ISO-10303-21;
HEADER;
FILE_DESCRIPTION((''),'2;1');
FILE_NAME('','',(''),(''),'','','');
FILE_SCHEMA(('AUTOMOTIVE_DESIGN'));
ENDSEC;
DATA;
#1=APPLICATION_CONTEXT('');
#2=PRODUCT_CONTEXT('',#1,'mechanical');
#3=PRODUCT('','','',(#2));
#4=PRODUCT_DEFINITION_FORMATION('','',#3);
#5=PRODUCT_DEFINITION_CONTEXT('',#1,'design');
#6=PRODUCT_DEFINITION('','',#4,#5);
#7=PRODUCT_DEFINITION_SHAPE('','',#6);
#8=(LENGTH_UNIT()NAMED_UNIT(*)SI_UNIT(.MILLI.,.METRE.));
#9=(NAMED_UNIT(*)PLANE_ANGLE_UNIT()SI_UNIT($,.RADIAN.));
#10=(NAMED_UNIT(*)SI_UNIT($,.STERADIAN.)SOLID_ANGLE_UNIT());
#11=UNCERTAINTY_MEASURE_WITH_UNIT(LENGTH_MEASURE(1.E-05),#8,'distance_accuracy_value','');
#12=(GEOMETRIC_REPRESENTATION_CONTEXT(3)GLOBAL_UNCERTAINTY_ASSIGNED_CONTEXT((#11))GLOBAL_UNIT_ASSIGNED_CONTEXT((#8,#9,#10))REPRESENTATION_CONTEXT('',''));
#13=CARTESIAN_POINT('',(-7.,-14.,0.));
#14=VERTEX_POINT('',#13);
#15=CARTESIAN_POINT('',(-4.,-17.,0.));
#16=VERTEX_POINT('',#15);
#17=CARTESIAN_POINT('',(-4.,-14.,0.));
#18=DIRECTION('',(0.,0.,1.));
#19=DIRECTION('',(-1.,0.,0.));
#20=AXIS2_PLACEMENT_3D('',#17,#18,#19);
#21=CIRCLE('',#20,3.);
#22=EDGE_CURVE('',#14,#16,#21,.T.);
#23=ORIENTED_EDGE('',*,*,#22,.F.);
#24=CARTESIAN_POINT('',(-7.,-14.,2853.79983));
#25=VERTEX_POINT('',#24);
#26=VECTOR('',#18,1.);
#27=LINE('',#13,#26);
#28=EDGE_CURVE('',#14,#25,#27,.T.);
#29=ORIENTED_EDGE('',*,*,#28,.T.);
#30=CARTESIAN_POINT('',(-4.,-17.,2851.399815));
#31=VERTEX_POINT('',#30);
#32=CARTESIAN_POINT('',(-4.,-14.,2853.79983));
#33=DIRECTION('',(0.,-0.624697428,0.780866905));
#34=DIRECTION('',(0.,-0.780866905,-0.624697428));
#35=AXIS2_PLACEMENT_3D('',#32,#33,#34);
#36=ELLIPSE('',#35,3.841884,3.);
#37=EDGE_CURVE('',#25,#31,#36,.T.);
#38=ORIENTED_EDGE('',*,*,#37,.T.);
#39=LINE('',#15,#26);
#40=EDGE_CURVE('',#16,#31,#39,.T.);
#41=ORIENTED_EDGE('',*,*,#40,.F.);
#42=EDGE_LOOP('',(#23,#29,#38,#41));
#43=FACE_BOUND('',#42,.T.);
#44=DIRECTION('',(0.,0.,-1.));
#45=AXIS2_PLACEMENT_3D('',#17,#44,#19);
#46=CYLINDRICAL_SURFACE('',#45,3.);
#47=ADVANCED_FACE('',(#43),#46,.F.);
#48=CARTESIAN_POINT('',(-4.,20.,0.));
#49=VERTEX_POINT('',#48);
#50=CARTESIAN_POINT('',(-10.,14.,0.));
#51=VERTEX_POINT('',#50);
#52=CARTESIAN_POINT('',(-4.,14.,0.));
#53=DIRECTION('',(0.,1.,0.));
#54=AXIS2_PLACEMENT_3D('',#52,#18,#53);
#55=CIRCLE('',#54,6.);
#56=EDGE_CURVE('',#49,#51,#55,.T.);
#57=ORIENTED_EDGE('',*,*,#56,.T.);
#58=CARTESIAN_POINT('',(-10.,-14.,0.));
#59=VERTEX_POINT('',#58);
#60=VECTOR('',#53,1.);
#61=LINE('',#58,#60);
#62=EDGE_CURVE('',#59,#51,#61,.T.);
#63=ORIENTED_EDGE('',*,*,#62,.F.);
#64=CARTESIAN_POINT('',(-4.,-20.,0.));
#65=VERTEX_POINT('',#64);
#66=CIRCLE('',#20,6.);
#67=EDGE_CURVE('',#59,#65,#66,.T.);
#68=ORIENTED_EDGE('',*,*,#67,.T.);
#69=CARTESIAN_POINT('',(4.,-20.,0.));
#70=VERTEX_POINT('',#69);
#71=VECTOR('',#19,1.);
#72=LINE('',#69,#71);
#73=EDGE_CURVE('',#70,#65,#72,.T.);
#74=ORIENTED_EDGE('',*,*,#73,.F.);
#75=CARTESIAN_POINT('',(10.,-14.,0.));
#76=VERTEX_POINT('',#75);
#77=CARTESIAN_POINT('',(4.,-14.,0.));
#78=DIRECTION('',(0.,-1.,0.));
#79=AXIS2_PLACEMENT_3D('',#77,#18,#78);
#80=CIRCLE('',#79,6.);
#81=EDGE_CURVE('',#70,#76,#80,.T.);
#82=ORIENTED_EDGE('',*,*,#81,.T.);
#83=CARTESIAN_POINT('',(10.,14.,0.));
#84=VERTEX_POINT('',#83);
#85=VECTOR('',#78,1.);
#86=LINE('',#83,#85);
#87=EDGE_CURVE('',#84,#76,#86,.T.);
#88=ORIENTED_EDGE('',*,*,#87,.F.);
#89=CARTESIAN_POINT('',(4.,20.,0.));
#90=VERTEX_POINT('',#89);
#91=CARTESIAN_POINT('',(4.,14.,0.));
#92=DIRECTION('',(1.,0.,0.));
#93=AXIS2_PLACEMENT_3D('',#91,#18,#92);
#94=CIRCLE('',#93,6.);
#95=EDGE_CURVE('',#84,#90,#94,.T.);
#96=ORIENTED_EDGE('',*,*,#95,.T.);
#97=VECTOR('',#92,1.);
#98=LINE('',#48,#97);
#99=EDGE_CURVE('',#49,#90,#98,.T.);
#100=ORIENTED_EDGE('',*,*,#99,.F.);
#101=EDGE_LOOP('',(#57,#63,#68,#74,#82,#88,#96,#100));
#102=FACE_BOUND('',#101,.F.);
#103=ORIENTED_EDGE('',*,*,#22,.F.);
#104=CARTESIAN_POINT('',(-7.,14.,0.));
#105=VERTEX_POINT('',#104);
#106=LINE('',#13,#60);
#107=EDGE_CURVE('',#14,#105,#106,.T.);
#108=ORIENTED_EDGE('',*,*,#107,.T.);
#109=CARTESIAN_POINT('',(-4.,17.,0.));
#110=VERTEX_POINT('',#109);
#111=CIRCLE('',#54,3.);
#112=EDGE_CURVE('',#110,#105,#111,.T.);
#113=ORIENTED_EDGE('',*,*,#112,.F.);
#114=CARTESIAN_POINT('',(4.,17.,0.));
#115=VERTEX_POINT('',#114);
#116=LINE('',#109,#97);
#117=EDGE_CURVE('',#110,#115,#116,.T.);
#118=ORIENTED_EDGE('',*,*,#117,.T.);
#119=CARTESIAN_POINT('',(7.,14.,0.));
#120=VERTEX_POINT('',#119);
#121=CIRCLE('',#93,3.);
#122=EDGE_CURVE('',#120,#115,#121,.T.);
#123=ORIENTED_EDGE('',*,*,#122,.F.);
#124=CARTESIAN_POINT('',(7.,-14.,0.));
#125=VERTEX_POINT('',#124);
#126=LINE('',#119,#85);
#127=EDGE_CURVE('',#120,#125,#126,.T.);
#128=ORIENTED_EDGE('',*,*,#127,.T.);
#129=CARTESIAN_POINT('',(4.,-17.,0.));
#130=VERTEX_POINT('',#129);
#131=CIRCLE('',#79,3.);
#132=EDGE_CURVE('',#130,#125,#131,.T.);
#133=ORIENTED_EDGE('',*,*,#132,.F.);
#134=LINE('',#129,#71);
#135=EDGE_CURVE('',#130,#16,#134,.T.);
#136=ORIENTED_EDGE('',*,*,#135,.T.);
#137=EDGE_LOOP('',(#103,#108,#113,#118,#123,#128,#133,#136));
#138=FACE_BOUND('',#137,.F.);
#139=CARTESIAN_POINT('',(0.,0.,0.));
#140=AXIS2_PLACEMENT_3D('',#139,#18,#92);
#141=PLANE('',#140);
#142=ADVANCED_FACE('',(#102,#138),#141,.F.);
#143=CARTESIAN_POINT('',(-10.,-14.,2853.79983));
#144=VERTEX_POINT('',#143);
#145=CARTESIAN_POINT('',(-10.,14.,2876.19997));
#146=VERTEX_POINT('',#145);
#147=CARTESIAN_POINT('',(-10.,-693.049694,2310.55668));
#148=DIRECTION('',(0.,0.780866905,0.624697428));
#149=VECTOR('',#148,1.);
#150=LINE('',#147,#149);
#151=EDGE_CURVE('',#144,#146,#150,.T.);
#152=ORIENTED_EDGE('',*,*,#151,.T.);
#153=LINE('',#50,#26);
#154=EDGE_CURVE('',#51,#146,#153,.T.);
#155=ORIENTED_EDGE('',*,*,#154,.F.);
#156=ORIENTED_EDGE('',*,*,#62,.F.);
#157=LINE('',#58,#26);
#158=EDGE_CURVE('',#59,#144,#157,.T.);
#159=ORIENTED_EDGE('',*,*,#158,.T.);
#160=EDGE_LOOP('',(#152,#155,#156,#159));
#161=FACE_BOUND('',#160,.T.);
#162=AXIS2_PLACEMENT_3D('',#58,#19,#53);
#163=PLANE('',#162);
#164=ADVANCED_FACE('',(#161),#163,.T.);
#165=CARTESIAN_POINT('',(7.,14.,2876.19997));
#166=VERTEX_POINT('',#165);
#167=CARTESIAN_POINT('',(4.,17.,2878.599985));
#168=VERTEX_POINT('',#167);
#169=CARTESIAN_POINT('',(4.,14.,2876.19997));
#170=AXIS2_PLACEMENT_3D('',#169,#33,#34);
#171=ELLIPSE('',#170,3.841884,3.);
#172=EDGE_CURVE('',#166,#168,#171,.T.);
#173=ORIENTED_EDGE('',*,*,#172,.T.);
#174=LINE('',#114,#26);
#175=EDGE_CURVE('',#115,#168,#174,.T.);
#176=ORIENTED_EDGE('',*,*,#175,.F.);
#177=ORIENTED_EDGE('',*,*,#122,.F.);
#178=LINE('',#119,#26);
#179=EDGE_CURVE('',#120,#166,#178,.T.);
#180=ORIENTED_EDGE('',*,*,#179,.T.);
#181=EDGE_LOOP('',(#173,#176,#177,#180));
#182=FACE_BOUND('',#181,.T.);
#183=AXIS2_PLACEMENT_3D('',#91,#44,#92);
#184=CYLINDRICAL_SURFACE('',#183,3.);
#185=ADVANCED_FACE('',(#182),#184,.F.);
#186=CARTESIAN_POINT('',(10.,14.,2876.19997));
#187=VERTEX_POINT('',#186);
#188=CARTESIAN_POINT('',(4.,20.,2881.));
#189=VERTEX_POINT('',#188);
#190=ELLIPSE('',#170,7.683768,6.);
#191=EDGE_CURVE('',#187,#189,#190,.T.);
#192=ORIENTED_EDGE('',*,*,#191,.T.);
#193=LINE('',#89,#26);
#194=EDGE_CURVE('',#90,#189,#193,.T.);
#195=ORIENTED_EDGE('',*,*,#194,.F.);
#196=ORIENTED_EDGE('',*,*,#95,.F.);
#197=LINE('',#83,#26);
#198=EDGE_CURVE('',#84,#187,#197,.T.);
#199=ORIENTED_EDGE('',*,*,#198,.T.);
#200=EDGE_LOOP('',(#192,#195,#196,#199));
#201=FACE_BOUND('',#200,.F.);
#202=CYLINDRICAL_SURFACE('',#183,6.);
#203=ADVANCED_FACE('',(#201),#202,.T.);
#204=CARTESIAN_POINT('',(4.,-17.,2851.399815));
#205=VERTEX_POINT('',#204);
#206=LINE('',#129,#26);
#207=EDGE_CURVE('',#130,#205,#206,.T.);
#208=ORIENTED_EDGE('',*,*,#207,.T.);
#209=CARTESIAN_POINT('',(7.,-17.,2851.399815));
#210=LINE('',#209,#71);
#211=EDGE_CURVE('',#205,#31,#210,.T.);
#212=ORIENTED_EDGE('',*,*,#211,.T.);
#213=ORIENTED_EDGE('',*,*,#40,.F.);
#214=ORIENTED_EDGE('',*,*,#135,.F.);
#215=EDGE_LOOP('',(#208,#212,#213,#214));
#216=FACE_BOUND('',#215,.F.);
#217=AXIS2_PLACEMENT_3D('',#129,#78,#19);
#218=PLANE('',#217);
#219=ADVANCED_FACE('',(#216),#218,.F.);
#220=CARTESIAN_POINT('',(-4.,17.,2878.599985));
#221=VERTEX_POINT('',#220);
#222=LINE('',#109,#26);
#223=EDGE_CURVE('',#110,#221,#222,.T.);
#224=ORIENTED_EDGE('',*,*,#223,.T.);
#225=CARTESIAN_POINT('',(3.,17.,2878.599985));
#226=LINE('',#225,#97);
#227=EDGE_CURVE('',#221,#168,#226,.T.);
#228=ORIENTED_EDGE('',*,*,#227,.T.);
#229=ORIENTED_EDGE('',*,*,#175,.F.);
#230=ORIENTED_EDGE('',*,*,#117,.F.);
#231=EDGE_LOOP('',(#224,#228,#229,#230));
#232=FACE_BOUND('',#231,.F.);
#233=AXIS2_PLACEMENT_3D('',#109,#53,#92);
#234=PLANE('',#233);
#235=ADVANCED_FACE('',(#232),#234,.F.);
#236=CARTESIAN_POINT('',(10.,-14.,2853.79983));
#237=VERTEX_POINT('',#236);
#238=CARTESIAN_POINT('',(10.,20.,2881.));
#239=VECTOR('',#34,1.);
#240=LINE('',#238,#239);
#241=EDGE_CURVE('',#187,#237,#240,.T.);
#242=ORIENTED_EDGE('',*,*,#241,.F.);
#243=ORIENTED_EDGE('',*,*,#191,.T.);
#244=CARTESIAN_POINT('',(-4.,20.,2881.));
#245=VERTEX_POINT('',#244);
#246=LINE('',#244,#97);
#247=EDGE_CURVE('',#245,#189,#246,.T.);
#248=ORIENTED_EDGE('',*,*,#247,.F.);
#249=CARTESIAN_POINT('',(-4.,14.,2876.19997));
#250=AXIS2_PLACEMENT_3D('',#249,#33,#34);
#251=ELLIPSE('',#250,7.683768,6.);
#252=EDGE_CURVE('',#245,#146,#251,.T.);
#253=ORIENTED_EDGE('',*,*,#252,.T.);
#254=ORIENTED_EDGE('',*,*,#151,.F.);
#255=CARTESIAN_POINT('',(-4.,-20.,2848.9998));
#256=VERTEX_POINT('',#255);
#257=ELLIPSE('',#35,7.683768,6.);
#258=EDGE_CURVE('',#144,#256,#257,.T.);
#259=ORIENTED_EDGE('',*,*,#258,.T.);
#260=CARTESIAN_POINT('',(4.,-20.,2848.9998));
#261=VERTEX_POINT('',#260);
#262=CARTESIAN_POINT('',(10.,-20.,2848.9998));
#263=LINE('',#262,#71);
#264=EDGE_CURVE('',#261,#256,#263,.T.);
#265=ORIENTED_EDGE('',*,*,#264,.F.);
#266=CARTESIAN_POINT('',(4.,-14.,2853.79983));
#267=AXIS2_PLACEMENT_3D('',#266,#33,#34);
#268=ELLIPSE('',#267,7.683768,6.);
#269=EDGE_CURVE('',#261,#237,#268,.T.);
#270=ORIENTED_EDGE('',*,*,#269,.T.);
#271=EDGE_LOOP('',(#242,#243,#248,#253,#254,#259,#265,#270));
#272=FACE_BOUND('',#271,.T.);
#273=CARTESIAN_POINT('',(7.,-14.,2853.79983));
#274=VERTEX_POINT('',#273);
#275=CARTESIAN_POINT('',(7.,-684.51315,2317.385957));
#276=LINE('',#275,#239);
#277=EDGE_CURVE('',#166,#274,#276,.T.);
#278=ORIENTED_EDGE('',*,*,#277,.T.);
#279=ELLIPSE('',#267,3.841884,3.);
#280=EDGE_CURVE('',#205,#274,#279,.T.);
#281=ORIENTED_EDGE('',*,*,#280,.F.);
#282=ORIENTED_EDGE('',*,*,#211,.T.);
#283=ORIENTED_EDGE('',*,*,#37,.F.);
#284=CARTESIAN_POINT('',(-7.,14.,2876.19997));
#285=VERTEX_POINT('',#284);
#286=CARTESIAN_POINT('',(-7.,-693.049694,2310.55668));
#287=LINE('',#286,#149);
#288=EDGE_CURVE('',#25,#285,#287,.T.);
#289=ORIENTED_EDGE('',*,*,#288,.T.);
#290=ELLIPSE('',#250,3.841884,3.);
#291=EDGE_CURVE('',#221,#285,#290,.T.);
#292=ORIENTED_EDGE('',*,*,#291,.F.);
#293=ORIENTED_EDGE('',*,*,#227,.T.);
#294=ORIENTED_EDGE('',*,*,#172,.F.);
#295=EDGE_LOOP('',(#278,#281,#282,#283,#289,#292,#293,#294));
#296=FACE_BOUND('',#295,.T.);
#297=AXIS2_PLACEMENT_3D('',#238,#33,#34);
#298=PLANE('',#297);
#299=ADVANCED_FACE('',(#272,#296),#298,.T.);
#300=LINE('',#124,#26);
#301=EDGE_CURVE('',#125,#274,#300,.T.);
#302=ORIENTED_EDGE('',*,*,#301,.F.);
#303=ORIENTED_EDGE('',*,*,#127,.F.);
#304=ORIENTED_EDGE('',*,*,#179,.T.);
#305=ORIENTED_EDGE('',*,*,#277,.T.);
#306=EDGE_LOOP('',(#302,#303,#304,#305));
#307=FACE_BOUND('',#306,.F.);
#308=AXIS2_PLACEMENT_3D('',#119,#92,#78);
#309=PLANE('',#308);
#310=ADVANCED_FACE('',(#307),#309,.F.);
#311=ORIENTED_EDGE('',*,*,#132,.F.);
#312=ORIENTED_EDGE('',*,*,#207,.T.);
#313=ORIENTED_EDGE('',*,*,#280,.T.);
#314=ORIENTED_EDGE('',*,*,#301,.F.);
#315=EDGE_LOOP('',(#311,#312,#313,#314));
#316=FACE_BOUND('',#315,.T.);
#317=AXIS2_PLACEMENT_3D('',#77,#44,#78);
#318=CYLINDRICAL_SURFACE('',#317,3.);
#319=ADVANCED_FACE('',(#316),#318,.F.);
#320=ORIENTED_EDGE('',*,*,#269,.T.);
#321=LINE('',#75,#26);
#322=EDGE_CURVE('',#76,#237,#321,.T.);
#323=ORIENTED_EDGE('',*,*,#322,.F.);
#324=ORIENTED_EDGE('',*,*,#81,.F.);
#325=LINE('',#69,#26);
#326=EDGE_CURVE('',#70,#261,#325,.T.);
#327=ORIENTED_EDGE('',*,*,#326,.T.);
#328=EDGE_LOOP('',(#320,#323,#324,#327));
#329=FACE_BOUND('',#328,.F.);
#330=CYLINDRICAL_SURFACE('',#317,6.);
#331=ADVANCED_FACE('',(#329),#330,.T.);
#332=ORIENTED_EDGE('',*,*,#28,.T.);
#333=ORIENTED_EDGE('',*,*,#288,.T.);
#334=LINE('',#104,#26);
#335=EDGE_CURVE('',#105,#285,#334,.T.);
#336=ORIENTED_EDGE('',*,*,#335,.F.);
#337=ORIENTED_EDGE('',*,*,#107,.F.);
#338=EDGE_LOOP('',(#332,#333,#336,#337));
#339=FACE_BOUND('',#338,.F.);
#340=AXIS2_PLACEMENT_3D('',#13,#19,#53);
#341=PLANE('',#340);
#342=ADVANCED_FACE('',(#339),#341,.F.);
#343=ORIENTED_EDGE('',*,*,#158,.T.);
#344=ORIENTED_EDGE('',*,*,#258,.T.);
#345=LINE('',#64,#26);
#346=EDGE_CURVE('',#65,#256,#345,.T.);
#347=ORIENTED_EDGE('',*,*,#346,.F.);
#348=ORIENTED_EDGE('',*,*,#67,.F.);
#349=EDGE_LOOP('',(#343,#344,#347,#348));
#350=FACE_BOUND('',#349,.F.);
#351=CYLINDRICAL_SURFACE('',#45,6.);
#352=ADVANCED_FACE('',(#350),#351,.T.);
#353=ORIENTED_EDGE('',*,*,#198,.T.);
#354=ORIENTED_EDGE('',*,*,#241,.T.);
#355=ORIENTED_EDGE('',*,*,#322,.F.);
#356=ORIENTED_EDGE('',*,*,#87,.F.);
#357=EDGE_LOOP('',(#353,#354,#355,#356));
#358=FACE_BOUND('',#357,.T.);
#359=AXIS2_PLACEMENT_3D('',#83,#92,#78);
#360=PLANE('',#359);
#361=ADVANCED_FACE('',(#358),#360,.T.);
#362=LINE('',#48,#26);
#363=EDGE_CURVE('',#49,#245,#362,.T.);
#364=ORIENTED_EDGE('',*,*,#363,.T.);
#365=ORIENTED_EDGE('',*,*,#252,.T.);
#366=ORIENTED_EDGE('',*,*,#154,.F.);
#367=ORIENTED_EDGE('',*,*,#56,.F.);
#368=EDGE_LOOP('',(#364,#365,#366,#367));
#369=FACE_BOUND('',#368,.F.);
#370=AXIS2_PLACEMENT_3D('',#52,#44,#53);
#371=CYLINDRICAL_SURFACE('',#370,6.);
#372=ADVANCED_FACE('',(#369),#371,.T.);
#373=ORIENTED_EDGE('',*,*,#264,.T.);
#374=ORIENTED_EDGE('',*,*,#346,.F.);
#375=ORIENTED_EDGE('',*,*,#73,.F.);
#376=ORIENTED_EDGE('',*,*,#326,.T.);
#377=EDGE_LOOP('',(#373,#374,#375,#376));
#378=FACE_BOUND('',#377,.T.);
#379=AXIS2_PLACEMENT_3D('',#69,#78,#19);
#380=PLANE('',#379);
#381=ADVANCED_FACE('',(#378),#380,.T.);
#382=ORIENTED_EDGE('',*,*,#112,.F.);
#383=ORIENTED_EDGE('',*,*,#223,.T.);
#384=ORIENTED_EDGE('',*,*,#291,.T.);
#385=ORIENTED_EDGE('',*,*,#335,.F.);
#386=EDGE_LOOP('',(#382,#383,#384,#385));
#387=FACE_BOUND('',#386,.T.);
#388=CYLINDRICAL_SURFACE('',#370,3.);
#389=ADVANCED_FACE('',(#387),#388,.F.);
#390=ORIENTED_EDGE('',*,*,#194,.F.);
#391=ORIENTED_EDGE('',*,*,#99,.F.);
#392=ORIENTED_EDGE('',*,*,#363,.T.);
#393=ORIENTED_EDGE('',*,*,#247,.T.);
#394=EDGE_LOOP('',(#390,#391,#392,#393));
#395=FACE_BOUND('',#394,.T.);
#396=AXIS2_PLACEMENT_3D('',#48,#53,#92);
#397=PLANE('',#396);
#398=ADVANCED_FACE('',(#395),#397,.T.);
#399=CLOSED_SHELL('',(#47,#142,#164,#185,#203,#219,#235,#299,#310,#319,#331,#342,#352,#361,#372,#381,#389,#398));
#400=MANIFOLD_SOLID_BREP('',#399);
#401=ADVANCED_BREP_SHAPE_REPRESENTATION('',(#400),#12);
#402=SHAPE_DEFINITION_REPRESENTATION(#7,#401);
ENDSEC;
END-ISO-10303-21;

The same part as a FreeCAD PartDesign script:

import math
import FreeCAD as App
import Part
import Sketcher
from FreeCAD import Vector
Q = App.Units.Quantity

doc = App.newDocument("Part")
body = doc.addObject("PartDesign::Body", "Body")

# Sketch on XY plane
sketch1 = doc.addObject("Sketcher::SketchObject", "Sketch")
body.addObject(sketch1)
sketch1.AttachmentSupport = (doc.XY_Plane, [""])
sketch1.MapMode = "FlatFace"
sketch1.addGeometry(Part.LineSegment(Vector(-10, 14, 0), Vector(-10, -14, 0)), False)
sketch1.addGeometry(Part.ArcOfCircle(Part.Circle(Vector(-4, -14, 0), Vector(0, 0, 1), 6), math.radians(180), math.radians(270)), False)
sketch1.addGeometry(Part.LineSegment(Vector(-4, -20, 0), Vector(4, -20, 0)), False)
sketch1.addGeometry(Part.ArcOfCircle(Part.Circle(Vector(4, -14, 0), Vector(0, 0, 1), 6), math.radians(-90), math.radians(0)), False)
sketch1.addGeometry(Part.LineSegment(Vector(10, -14, 0), Vector(10, 14, 0)), False)
sketch1.addGeometry(Part.ArcOfCircle(Part.Circle(Vector(4, 14, 0), Vector(0, 0, 1), 6), math.radians(0), math.radians(90)), False)
sketch1.addGeometry(Part.LineSegment(Vector(4, 20, 0), Vector(-4, 20, 0)), False)
sketch1.addGeometry(Part.ArcOfCircle(Part.Circle(Vector(-4, 14, 0), Vector(0, 0, 1), 6), math.radians(90), math.radians(180)), False)
sketch1.addGeometry(Part.ArcOfCircle(Part.Circle(Vector(-4, 14, 0), Vector(0, 0, 1), 3), math.radians(90), math.radians(180)), False)
sketch1.addGeometry(Part.LineSegment(Vector(-4, 17, 0), Vector(4, 17, 0)), False)
sketch1.addGeometry(Part.ArcOfCircle(Part.Circle(Vector(4, 14, 0), Vector(0, 0, 1), 3), math.radians(0), math.radians(90)), False)
sketch1.addGeometry(Part.LineSegment(Vector(7, 14, 0), Vector(7, -14, 0)), False)
sketch1.addGeometry(Part.ArcOfCircle(Part.Circle(Vector(4, -14, 0), Vector(0, 0, 1), 3), math.radians(-90), math.radians(0)), False)
sketch1.addGeometry(Part.LineSegment(Vector(4, -17, 0), Vector(-4, -17, 0)), False)
sketch1.addGeometry(Part.ArcOfCircle(Part.Circle(Vector(-4, -14, 0), Vector(0, 0, 1), 3), math.radians(180), math.radians(270)), False)
sketch1.addGeometry(Part.LineSegment(Vector(-7, -14, 0), Vector(-7, 14, 0)), False)
sketch1.addConstraint(Sketcher.Constraint("Tangent", 0, 2, 1, 1))
sketch1.addConstraint(Sketcher.Constraint("Tangent", 1, 2, 2, 1))
sketch1.addConstraint(Sketcher.Constraint("Tangent", 2, 2, 3, 1))
sketch1.addConstraint(Sketcher.Constraint("Tangent", 3, 2, 4, 1))
sketch1.addConstraint(Sketcher.Constraint("Tangent", 4, 2, 5, 1))
sketch1.addConstraint(Sketcher.Constraint("Tangent", 5, 2, 6, 1))
sketch1.addConstraint(Sketcher.Constraint("Tangent", 6, 2, 7, 1))
sketch1.addConstraint(Sketcher.Constraint("Tangent", 7, 2, 0, 1))
sketch1.addConstraint(Sketcher.Constraint("Tangent", 8, 1, 9, 1))
sketch1.addConstraint(Sketcher.Constraint("Tangent", 9, 2, 10, 2))
sketch1.addConstraint(Sketcher.Constraint("Tangent", 10, 1, 11, 1))
sketch1.addConstraint(Sketcher.Constraint("Tangent", 11, 2, 12, 2))
sketch1.addConstraint(Sketcher.Constraint("Tangent", 12, 1, 13, 1))
sketch1.addConstraint(Sketcher.Constraint("Tangent", 13, 2, 14, 2))
sketch1.addConstraint(Sketcher.Constraint("Tangent", 14, 1, 15, 1))
sketch1.addConstraint(Sketcher.Constraint("Tangent", 15, 2, 8, 2))
sketch1.addConstraint(Sketcher.Constraint("Vertical", 0))
sketch1.addConstraint(Sketcher.Constraint("Horizontal", 2))
sketch1.addConstraint(Sketcher.Constraint("Vertical", 4))
sketch1.addConstraint(Sketcher.Constraint("Horizontal", 6))
sketch1.addConstraint(Sketcher.Constraint("Horizontal", 9))
sketch1.addConstraint(Sketcher.Constraint("Vertical", 11))
sketch1.addConstraint(Sketcher.Constraint("Horizontal", 13))
sketch1.addConstraint(Sketcher.Constraint("Vertical", 15))
sketch1.addConstraint(Sketcher.Constraint("Coincident", 8, 3, 7, 3))
sketch1.addConstraint(Sketcher.Constraint("Coincident", 10, 3, 5, 3))
sketch1.addConstraint(Sketcher.Constraint("Coincident", 12, 3, 3, 3))
sketch1.addConstraint(Sketcher.Constraint("Equal", 1, 3))
sketch1.addConstraint(Sketcher.Constraint("Equal", 3, 5))
sketch1.addConstraint(Sketcher.Constraint("Equal", 5, 7))
sketch1.addConstraint(Sketcher.Constraint("Equal", 12, 14))
sketch1.addConstraint(Sketcher.Constraint("Symmetric", 1, 3, 5, 3, -1, 1))
sketch1.addConstraint(Sketcher.Constraint("Radius", 1, 6.0))
sketch1.addConstraint(Sketcher.Constraint("Radius", 8, 3.0))
sketch1.addConstraint(Sketcher.Constraint("DistanceX", 0, 2, -1, 1, 10.0))
sketch1.addConstraint(Sketcher.Constraint("DistanceY", 1, 2, -1, 1, 20.0))
pad1 = doc.addObject("PartDesign::Pad", "Pad")
body.addObject(pad1)
pad1.Profile = sketch1
pad1.Length = 2881

# Sketch on YZ plane
sketch2 = doc.addObject("Sketcher::SketchObject", "Sketch001")
body.addObject(sketch2)
sketch2.AttachmentSupport = (doc.YZ_Plane, [""])
sketch2.MapMode = "FlatFace"
sketch2.AttachmentOffset = App.Placement(Vector(0, 0, 10), App.Rotation())
sketch2.addGeometry(Part.LineSegment(Vector(20, 2881, 0), Vector(-20, 2881, 0)), False)
sketch2.addGeometry(Part.LineSegment(Vector(-20, 2881, 0), Vector(-20, 2849, 0)), False)
sketch2.addGeometry(Part.LineSegment(Vector(-20, 2849, 0), Vector(20, 2881, 0)), False)
sketch2.addConstraint(Sketcher.Constraint("Coincident", 0, 2, 1, 1))
sketch2.addConstraint(Sketcher.Constraint("Coincident", 1, 2, 2, 1))
sketch2.addConstraint(Sketcher.Constraint("Coincident", 2, 2, 0, 1))
sketch2.addConstraint(Sketcher.Constraint("Horizontal", 0))
sketch2.addConstraint(Sketcher.Constraint("Vertical", 1))
sketch2.addConstraint(Sketcher.Constraint("Angle", 2, Q("38.66 deg")))
sketch2.addConstraint(Sketcher.Constraint("DistanceX", 0, 2, 0, 1, 40.0))
sketch2.addConstraint(Sketcher.Constraint("DistanceX", 0, 2, -1, 1, 20.0))
sketch2.addConstraint(Sketcher.Constraint("DistanceY", -1, 1, 0, 2, 2881.0))
pocket1 = doc.addObject("PartDesign::Pocket", "Pocket")
body.addObject(pocket1)
pocket1.Profile = sketch2
pocket1.Type = "ThroughAll"

doc.recompute()
